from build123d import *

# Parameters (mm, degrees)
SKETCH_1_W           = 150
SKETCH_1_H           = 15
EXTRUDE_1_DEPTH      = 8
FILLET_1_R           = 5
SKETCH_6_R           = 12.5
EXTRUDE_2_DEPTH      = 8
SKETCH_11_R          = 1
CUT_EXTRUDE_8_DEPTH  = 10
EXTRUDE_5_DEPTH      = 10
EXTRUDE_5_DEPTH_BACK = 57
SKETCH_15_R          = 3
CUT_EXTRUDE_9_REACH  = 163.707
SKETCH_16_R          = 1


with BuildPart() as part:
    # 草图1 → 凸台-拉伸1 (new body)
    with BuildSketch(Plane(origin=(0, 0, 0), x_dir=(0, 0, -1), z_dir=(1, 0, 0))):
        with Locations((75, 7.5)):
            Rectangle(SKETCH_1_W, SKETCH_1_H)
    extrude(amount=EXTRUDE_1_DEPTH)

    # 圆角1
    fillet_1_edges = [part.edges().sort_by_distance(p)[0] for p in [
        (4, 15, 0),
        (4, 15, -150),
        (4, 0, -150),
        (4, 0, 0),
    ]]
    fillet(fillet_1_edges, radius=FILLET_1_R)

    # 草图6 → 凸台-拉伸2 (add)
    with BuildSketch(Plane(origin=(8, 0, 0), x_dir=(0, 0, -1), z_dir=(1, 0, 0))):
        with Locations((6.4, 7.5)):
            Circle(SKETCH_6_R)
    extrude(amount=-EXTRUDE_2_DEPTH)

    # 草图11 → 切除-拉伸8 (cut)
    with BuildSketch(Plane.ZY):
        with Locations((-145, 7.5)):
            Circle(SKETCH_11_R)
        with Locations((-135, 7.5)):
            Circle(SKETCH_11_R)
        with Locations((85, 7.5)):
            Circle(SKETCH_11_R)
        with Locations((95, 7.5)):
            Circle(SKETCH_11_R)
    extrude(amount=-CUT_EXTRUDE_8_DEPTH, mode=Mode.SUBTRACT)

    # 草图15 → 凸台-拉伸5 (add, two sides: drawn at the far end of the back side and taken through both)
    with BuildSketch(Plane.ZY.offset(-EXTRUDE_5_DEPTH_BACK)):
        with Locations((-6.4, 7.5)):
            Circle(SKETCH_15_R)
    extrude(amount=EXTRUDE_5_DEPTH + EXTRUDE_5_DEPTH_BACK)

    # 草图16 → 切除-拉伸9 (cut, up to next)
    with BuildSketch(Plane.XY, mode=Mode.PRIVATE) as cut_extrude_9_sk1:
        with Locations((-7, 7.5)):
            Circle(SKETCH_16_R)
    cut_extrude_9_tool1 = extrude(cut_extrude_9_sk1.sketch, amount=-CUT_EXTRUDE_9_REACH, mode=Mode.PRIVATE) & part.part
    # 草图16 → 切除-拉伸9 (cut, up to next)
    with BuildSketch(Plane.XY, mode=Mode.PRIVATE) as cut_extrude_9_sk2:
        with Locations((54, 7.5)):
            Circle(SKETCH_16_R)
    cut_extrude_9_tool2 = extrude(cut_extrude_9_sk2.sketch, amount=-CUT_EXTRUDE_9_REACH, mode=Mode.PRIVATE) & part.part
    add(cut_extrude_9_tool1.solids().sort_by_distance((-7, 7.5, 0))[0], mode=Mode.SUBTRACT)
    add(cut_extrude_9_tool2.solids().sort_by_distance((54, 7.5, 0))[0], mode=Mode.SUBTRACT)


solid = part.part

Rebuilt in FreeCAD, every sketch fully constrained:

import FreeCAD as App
import Part
import Sketcher
from FreeCAD import Vector
Q = App.Units.Quantity


def edges_at(feature, points):
    """Names of the edges that pass closest to the given points."""
    edges = feature.Shape.Edges
    near = lambda p: min(range(len(edges)), key=lambda i: edges[i].distToShape(Part.Vertex(*p))[0])
    return sorted({f"Edge{near(p) + 1}" for p in points})

doc = App.newDocument("Part")
body = doc.addObject("PartDesign::Body", "Body")

# Sketch on YZ plane
sketch1 = body.newObject("Sketcher::SketchObject", "Sketch")
sketch1.AttachmentSupport = (doc.getObject("YZ_Plane"), [""])
sketch1.MapMode = "FlatFace"
sketch1.addGeometry(Part.LineSegment(Vector(15, 0, 0), Vector(0, 0, 0)), False)
sketch1.addGeometry(Part.LineSegment(Vector(0, 0, 0), Vector(0, -150, 0)), False)
sketch1.addGeometry(Part.LineSegment(Vector(0, -150, 0), Vector(15, -150, 0)), False)
sketch1.addGeometry(Part.LineSegment(Vector(15, -150, 0), Vector(15, 0, 0)), False)
sketch1.addConstraint(Sketcher.Constraint("Coincident", 0, 2, 1, 1))
sketch1.addConstraint(Sketcher.Constraint("Coincident", 1, 2, 2, 1))
sketch1.addConstraint(Sketcher.Constraint("Coincident", 2, 2, 3, 1))
sketch1.addConstraint(Sketcher.Constraint("Coincident", 3, 2, 0, 1))
sketch1.addConstraint(Sketcher.Constraint("Horizontal", 0))
sketch1.addConstraint(Sketcher.Constraint("Vertical", 1))
sketch1.addConstraint(Sketcher.Constraint("Horizontal", 2))
sketch1.addConstraint(Sketcher.Constraint("Vertical", 3))
sketch1.addConstraint(Sketcher.Constraint("Coincident", 0, 2, -1, 1))
sketch1.addConstraint(Sketcher.Constraint("DistanceX", 0, 2, 0, 1, Q("15 mm")))
sketch1.addConstraint(Sketcher.Constraint("DistanceY", 1, 2, 1, 1, Q("150 mm")))
pad1 = body.newObject("PartDesign::Pad", "Pad")
pad1.Profile = sketch1
pad1.Length = 8
doc.recompute()

fillet = body.newObject("PartDesign::Fillet", "Fillet")
fillet.Base = (pad1, edges_at(pad1, [
    (4, 15, 0),
    (4, 15, -150),
    (4, 0, -150),
    (4, 0, 0),
]))
fillet.Radius = 5

# Sketch on YZ plane
sketch2 = body.newObject("Sketcher::SketchObject", "Sketch001")
sketch2.AttachmentSupport = (doc.getObject("YZ_Plane"), [""])
sketch2.MapMode = "FlatFace"
sketch2.AttachmentOffset = App.Placement(Vector(0, 0, 8), App.Rotation())
sketch2.addGeometry(Part.Circle(Vector(8, -6, 0), Vector(0, 0, 1), 12), False)
sketch2.addConstraint(Sketcher.Constraint("Diameter", 0, Q("25 mm")))
sketch2.addConstraint(Sketcher.Constraint("DistanceX", -1, 1, 0, 3, Q("7.5 mm")))
sketch2.addConstraint(Sketcher.Constraint("DistanceY", 0, 3, -1, 1, Q("6.4 mm")))
pad2 = body.newObject("PartDesign::Pad", "Pad001")
pad2.Profile = sketch2
pad2.Length = 8
pad2.Reversed = True

# Sketch on YZ plane
sketch3 = body.newObject("Sketcher::SketchObject", "Sketch002")
sketch3.AttachmentSupport = (doc.getObject("YZ_Plane"), [""])
sketch3.MapMode = "FlatFace"
sketch3.addGeometry(Part.Circle(Vector(7.5, -145, 0), Vector(0, 0, 1), 1), False)
sketch3.addGeometry(Part.Circle(Vector(7.5, -135, 0), Vector(0, 0, 1), 1), False)
sketch3.addGeometry(Part.Circle(Vector(7.5, 85, 0), Vector(0, 0, 1), 1), False)
sketch3.addGeometry(Part.Circle(Vector(7.5, 95, 0), Vector(0, 0, 1), 1), False)
sketch3.addConstraint(Sketcher.Constraint("Equal", 0, 1))
sketch3.addConstraint(Sketcher.Constraint("Equal", 1, 2))
sketch3.addConstraint(Sketcher.Constraint("Equal", 2, 3))
sketch3.addConstraint(Sketcher.Constraint("Vertical", 0, 3, 1, 3))
sketch3.addConstraint(Sketcher.Constraint("Vertical", 1, 3, 2, 3))
sketch3.addConstraint(Sketcher.Constraint("Vertical", 2, 3, 3, 3))
sketch3.addConstraint(Sketcher.Constraint("Diameter", 0, Q("2 mm")))
sketch3.addConstraint(Sketcher.Constraint("DistanceY", 0, 3, -1, 1, Q("145 mm")))
sketch3.addConstraint(Sketcher.Constraint("DistanceY", 1, 3, -1, 1, Q("135 mm")))
sketch3.addConstraint(Sketcher.Constraint("DistanceY", -1, 1, 2, 3, Q("85 mm")))
sketch3.addConstraint(Sketcher.Constraint("DistanceY", -1, 1, 3, 3, Q("95 mm")))
sketch3.addConstraint(Sketcher.Constraint("DistanceX", -1, 1, 0, 3, Q("7.5 mm")))
pocket1 = body.newObject("PartDesign::Pocket", "Pocket")
pocket1.Profile = sketch3
pocket1.Length = 10
pocket1.Reversed = True

# Sketch on YZ plane
sketch4 = body.newObject("Sketcher::SketchObject", "Sketch003")
sketch4.AttachmentSupport = (doc.getObject("YZ_Plane"), [""])
sketch4.MapMode = "FlatFace"
sketch4.addGeometry(Part.Circle(Vector(7.5, -6.4, 0), Vector(0, 0, 1), 3), False)
sketch4.addConstraint(Sketcher.Constraint("Diameter", 0, Q("6 mm")))
sketch4.addConstraint(Sketcher.Constraint("DistanceX", -1, 1, 0, 3, Q("7.5 mm")))
sketch4.addConstraint(Sketcher.Constraint("DistanceY", 0, 3, -1, 1, Q("6.4 mm")))
pad3 = body.newObject("PartDesign::Pad", "Pad002")
pad3.Profile = sketch4
pad3.Type = "TwoLengths"
pad3.Length = 10
pad3.Length2 = 57
pad3.Reversed = True

# Sketch on XY plane
sketch5 = body.newObject("Sketcher::SketchObject", "Sketch004")
sketch5.AttachmentSupport = (doc.getObject("XY_Plane"), [""])
sketch5.MapMode = "FlatFace"
sketch5.addGeometry(Part.Circle(Vector(-7, 7.5, 0), Vector(0, 0, 1), 1), False)
sketch5.addConstraint(Sketcher.Constraint("Diameter", 0, Q("2 mm")))
sketch5.addConstraint(Sketcher.Constraint("DistanceX", 0, 3, -1, 1, Q("7 mm")))
sketch5.addConstraint(Sketcher.Constraint("DistanceY", -1, 1, 0, 3, Q("7.5 mm")))
pocket2 = body.newObject("PartDesign::Pocket", "Pocket001")
pocket2.Profile = sketch5
pocket2.Length = 9.4

# Sketch on XY plane
sketch6 = body.newObject("Sketcher::SketchObject", "Sketch005")
sketch6.AttachmentSupport = (doc.getObject("XY_Plane"), [""])
sketch6.MapMode = "FlatFace"
sketch6.addGeometry(Part.Circle(Vector(54, 7.5, 0), Vector(0, 0, 1), 1), False)
sketch6.addConstraint(Sketcher.Constraint("Diameter", 0, Q("2 mm")))
sketch6.addConstraint(Sketcher.Constraint("DistanceX", -1, 1, 0, 3, Q("54 mm")))
sketch6.addConstraint(Sketcher.Constraint("DistanceY", -1, 1, 0, 3, Q("7.5 mm")))
pocket3 = body.newObject("PartDesign::Pocket", "Pocket002")
pocket3.Profile = sketch6
pocket3.Length = 9.4

doc.recompute()
